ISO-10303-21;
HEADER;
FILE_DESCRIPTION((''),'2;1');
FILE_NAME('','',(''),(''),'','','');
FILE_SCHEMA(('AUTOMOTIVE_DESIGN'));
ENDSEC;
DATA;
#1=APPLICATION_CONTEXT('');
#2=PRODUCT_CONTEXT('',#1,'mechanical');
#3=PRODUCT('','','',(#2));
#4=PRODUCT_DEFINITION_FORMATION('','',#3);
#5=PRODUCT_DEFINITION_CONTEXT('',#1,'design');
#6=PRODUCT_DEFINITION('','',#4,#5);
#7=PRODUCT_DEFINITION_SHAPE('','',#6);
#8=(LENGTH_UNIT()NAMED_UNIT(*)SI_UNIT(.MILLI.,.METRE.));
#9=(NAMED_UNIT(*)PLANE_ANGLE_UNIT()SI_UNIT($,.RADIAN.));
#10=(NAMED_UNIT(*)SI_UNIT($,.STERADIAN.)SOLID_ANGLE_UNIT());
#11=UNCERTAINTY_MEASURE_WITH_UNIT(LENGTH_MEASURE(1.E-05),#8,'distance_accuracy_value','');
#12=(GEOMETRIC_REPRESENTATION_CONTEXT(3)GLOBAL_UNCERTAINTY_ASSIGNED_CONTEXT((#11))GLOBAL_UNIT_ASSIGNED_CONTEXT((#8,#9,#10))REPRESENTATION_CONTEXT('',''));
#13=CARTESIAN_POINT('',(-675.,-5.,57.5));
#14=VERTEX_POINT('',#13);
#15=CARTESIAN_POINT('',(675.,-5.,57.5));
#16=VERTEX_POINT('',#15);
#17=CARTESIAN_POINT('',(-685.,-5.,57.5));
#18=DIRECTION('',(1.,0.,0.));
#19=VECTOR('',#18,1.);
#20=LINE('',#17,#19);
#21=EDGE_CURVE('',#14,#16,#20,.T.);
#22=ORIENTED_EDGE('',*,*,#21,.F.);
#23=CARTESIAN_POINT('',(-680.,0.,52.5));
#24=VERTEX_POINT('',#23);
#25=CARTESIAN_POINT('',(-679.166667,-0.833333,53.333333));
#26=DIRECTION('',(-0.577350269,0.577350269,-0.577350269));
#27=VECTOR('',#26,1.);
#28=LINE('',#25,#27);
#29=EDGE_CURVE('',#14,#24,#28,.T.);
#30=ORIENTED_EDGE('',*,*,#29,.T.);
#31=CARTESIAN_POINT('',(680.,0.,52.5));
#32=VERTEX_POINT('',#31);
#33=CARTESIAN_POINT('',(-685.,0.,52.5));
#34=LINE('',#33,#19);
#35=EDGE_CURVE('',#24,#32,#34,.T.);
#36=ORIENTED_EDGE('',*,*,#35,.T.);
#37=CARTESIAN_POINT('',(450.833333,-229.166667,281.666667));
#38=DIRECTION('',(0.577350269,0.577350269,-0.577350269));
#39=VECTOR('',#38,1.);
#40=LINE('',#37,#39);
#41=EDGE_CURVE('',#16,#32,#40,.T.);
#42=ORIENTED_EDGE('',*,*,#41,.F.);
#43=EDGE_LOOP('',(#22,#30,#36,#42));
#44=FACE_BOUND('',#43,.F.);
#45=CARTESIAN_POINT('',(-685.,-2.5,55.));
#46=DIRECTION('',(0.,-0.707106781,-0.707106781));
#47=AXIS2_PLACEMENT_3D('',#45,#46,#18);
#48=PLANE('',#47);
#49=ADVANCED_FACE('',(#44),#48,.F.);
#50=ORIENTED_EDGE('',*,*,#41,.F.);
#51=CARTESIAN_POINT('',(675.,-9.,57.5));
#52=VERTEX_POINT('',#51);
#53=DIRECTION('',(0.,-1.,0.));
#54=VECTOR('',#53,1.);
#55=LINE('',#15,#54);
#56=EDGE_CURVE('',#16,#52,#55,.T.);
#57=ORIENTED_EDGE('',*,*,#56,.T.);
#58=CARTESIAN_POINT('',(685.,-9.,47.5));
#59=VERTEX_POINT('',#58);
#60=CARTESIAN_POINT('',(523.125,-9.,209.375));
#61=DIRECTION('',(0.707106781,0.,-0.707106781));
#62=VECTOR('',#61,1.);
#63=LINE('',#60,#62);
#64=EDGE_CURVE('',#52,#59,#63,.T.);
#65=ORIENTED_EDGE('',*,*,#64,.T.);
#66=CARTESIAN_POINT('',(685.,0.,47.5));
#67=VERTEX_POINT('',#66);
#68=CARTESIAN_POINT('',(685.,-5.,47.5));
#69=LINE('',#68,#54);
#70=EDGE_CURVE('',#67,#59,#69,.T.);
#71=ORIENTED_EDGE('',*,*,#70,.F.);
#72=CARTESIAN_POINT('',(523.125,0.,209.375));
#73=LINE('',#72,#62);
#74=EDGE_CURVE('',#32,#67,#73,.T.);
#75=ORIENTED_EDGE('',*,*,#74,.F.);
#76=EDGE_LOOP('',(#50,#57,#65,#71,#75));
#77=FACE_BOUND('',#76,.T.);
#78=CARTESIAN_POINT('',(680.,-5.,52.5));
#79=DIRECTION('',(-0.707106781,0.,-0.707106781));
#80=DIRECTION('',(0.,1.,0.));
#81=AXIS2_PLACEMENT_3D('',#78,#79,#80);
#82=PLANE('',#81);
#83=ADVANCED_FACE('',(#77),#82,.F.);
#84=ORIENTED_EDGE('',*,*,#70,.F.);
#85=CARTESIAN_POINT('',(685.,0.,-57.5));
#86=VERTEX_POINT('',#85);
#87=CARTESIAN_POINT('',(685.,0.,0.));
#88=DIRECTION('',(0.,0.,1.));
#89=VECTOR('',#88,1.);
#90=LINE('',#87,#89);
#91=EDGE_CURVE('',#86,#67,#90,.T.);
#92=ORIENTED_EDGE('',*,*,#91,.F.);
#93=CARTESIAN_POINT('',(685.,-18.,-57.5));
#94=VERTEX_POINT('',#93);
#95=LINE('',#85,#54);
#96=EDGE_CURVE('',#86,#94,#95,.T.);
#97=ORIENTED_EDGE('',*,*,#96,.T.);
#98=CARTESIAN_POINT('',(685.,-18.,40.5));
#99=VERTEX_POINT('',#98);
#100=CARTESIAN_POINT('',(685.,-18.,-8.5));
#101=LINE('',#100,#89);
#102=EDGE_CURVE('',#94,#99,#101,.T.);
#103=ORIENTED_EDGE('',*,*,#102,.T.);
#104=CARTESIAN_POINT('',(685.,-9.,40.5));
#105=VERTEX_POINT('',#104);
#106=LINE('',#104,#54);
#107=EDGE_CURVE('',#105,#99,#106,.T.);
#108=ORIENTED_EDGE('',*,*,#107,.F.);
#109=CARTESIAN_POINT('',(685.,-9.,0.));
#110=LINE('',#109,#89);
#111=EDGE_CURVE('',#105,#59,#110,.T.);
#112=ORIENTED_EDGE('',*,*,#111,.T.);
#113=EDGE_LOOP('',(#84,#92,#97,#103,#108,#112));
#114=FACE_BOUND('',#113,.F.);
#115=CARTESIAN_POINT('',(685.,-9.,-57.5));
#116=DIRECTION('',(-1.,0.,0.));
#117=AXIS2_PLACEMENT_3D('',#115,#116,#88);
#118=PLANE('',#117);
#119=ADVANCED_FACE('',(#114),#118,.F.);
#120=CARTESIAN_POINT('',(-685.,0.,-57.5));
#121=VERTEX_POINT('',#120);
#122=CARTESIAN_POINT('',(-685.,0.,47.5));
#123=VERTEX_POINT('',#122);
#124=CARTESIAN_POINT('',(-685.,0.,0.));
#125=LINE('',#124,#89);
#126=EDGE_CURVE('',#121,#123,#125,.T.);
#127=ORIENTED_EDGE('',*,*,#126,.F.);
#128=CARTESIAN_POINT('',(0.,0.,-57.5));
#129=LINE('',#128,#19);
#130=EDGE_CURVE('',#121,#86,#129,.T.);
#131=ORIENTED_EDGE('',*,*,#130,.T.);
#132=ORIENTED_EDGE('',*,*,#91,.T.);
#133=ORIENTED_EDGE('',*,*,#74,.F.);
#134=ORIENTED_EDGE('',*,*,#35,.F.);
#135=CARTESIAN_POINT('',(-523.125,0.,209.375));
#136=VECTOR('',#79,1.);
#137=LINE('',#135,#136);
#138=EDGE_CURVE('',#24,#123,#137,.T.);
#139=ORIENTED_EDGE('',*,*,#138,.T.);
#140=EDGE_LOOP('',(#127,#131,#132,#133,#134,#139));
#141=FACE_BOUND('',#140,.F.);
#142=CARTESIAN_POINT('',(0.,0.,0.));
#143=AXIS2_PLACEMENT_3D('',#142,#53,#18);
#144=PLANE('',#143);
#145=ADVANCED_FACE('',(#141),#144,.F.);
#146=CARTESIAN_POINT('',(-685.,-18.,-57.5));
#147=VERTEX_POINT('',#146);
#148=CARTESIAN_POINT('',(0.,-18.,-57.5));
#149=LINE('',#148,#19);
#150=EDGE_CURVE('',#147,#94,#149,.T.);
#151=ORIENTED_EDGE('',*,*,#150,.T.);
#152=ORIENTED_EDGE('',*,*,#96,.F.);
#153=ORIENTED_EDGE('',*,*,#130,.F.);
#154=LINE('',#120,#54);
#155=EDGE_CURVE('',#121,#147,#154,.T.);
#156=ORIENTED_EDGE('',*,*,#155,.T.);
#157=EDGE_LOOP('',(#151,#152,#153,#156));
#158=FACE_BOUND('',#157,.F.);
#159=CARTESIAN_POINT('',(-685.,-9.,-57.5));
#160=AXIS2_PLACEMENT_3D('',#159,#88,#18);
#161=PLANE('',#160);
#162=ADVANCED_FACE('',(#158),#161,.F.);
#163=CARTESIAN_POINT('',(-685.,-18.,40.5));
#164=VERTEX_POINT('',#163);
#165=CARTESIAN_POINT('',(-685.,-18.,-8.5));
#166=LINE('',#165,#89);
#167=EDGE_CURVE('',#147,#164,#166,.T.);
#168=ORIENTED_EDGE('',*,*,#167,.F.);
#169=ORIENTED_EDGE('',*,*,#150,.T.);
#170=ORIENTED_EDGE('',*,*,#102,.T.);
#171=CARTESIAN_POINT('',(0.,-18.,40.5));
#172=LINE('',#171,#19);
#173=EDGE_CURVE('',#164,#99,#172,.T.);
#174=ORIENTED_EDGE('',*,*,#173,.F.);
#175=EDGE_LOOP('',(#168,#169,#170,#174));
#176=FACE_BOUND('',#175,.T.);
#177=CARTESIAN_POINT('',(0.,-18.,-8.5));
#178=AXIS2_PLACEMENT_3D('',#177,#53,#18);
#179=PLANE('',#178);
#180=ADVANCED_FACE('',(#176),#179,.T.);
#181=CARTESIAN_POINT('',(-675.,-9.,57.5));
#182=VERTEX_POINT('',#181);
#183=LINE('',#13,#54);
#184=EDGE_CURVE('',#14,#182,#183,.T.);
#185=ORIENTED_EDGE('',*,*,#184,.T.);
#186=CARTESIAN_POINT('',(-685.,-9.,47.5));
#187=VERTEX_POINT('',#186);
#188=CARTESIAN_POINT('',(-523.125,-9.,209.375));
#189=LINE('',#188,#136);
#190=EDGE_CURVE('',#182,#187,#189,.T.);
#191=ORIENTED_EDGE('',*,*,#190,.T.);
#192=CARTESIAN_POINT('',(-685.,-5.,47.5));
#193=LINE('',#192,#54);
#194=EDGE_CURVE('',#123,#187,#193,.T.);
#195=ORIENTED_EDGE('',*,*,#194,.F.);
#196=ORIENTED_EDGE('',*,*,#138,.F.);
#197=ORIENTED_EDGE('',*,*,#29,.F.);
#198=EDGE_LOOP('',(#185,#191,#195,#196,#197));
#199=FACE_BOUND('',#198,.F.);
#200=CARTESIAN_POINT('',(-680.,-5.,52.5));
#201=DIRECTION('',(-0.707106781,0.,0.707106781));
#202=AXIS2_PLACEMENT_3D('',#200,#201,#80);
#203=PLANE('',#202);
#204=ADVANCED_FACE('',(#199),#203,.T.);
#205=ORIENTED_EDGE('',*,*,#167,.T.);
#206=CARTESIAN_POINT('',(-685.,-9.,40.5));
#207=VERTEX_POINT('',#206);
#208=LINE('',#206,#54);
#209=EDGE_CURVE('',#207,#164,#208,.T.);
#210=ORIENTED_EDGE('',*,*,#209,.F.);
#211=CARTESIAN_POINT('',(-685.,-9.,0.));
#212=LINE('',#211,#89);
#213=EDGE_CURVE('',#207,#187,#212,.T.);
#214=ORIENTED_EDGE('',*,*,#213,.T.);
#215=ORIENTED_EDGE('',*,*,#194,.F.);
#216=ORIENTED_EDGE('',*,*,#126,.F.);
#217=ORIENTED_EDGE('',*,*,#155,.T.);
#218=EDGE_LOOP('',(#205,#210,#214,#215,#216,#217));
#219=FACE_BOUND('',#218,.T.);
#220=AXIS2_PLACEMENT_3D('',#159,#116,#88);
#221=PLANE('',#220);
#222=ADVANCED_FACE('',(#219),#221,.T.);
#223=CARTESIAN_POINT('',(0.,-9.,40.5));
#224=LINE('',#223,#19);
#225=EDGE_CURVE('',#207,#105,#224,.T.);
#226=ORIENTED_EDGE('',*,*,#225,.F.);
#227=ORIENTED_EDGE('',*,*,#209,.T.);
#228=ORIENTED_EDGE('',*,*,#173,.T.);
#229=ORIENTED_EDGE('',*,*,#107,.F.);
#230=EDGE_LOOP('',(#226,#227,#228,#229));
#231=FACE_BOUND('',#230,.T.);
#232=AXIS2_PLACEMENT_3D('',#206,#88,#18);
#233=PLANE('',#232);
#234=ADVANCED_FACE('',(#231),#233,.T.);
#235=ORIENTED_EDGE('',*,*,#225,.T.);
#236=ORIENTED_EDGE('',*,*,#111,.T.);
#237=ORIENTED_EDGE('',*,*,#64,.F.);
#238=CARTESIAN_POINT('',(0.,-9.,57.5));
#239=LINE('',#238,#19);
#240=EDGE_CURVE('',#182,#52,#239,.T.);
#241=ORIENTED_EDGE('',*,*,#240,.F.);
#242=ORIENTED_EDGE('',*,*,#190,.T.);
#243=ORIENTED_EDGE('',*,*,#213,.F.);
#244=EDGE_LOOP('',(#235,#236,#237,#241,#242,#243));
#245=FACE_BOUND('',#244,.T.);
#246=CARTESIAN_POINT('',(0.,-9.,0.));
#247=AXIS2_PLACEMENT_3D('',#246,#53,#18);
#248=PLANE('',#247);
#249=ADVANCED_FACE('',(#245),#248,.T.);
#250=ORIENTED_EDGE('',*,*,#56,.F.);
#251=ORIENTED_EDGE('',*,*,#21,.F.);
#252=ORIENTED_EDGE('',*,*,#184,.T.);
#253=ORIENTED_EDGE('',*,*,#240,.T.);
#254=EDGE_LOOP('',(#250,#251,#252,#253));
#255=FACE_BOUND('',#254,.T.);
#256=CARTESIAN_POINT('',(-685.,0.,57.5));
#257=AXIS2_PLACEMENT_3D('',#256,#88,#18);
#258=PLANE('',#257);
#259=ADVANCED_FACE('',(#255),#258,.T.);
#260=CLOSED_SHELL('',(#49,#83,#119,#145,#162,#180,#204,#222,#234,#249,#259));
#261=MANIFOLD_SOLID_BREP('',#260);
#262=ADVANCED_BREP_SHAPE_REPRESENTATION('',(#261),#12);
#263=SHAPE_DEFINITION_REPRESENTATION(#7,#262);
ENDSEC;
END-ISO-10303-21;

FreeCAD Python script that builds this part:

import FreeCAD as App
import Part
import Sketcher


def edges_at(feature, points):
    """Names of the edges that pass closest to the given points."""
    edges = feature.Shape.Edges
    near = lambda p: min(range(len(edges)), key=lambda i: edges[i].distToShape(Part.Vertex(*p))[0])
    return sorted({f"Edge{near(p) + 1}" for p in points})

doc = App.newDocument("Part")
params = doc.addObject("Spreadsheet::Sheet", "Params")
for row, (alias, value) in enumerate([
    ("sketch1_width", "1370 mm"),
    ("sketch1_height", "115 mm"),
    ("pad1_length", "9 mm"),
    ("sketch2_width", "1370 mm"),
    ("sketch2_height", "98 mm"),
    ("pad2_length", "9 mm"),
    ("chamfer_size", "5 mm"),
    ("chamfer2_size", "10 mm"),
    ("chamfer3_size", "10 mm"),
], start=1):
    params.set(f"A{row}", alias)
    params.set(f"B{row}", "=" + value)
    params.setAlias(f"B{row}", alias)

body = doc.addObject("PartDesign::Body", "Body")

# Sketch on XZ plane
sketch1 = body.newObject("Sketcher::SketchObject", "Sketch")
sketch1.AttachmentSupport = (doc.getObject("XZ_Plane"), [""])
sketch1.MapMode = "FlatFace"
sketch1.addGeometry([
    Part.LineSegment(App.Vector(-685, 58, 0), App.Vector(-685, -58, 0)),
    Part.LineSegment(App.Vector(-685, -58, 0), App.Vector(685, -58, 0)),
    Part.LineSegment(App.Vector(685, -58, 0), App.Vector(685, 58, 0)),
    Part.LineSegment(App.Vector(685, 58, 0), App.Vector(-685, 58, 0)),
], False)
sketch1.addConstraint([
    Sketcher.Constraint("Coincident", 0, 2, 1, 1),
    Sketcher.Constraint("Coincident", 1, 2, 2, 1),
    Sketcher.Constraint("Coincident", 2, 2, 3, 1),
    Sketcher.Constraint("Coincident", 3, 2, 0, 1),
    Sketcher.Constraint("Vertical", 0),
    Sketcher.Constraint("Horizontal", 1),
    Sketcher.Constraint("Vertical", 2),
    Sketcher.Constraint("Horizontal", 3),
    Sketcher.Constraint("Symmetric", 0, 2, 2, 2, -1, 1),
    Sketcher.Constraint("DistanceX", 1, 1, 1, 2, 1370.0),
    Sketcher.Constraint("DistanceY", 0, 2, 0, 1, 115.0),
])
sketch1.setExpression("Constraints[9]", "Params.sketch1_width")
sketch1.setExpression("Constraints[10]", "Params.sketch1_height")
pad1 = body.newObject("PartDesign::Pad", "Pad")
pad1.Profile = sketch1
pad1.setExpression("Length", "Params.pad1_length")

# Sketch on XZ plane
sketch2 = body.newObject("Sketcher::SketchObject", "Sketch001")
sketch2.AttachmentSupport = (doc.getObject("XZ_Plane"), [""])
sketch2.MapMode = "FlatFace"
sketch2.AttachmentOffset = App.Placement(App.Vector(0, 0, 9), App.Rotation())
sketch2.addGeometry([
    Part.LineSegment(App.Vector(-685, 40, 0), App.Vector(-685, -58, 0)),
    Part.LineSegment(App.Vector(-685, -58, 0), App.Vector(685, -58, 0)),
    Part.LineSegment(App.Vector(685, -58, 0), App.Vector(685, 40, 0)),
    Part.LineSegment(App.Vector(685, 40, 0), App.Vector(-685, 40, 0)),
], False)
sketch2.addConstraint([
    Sketcher.Constraint("Coincident", 0, 2, 1, 1),
    Sketcher.Constraint("Coincident", 1, 2, 2, 1),
    Sketcher.Constraint("Coincident", 2, 2, 3, 1),
    Sketcher.Constraint("Coincident", 3, 2, 0, 1),
    Sketcher.Constraint("Vertical", 0),
    Sketcher.Constraint("Horizontal", 1),
    Sketcher.Constraint("Vertical", 2),
    Sketcher.Constraint("Horizontal", 3),
    Sketcher.Constraint("DistanceX", 1, 1, 1, 2, 1370.0),
    Sketcher.Constraint("DistanceY", 0, 2, 0, 1, 98.0),
    Sketcher.Constraint("DistanceX", 0, 2, -1, 1, 685.0),
    Sketcher.Constraint("DistanceY", 0, 2, -1, 1, 57.5),
])
sketch2.setExpression("Constraints[8]", "Params.sketch2_width")
sketch2.setExpression("Constraints[9]", "Params.sketch2_height")
pad2 = body.newObject("PartDesign::Pad", "Pad001")
pad2.Profile = sketch2
pad2.setExpression("Length", "Params.pad2_length")
doc.recompute()

chamfer = body.newObject("PartDesign::Chamfer", "Chamfer")
chamfer.Base = (pad2, edges_at(pad2, [(0, 0, 57.5)]))
chamfer.setExpression("Size", "Params.chamfer_size")
doc.recompute()

chamfer2 = body.newObject("PartDesign::Chamfer", "Chamfer001")
chamfer2.Base = (chamfer, edges_at(chamfer, [(685, -7, 57.5)]))
chamfer2.setExpression("Size", "Params.chamfer2_size")
doc.recompute()

chamfer3 = body.newObject("PartDesign::Chamfer", "Chamfer002")
chamfer3.Base = (chamfer2, edges_at(chamfer2, [(-685, -7, 57.5)]))
chamfer3.setExpression("Size", "Params.chamfer3_size")

doc.recompute()
